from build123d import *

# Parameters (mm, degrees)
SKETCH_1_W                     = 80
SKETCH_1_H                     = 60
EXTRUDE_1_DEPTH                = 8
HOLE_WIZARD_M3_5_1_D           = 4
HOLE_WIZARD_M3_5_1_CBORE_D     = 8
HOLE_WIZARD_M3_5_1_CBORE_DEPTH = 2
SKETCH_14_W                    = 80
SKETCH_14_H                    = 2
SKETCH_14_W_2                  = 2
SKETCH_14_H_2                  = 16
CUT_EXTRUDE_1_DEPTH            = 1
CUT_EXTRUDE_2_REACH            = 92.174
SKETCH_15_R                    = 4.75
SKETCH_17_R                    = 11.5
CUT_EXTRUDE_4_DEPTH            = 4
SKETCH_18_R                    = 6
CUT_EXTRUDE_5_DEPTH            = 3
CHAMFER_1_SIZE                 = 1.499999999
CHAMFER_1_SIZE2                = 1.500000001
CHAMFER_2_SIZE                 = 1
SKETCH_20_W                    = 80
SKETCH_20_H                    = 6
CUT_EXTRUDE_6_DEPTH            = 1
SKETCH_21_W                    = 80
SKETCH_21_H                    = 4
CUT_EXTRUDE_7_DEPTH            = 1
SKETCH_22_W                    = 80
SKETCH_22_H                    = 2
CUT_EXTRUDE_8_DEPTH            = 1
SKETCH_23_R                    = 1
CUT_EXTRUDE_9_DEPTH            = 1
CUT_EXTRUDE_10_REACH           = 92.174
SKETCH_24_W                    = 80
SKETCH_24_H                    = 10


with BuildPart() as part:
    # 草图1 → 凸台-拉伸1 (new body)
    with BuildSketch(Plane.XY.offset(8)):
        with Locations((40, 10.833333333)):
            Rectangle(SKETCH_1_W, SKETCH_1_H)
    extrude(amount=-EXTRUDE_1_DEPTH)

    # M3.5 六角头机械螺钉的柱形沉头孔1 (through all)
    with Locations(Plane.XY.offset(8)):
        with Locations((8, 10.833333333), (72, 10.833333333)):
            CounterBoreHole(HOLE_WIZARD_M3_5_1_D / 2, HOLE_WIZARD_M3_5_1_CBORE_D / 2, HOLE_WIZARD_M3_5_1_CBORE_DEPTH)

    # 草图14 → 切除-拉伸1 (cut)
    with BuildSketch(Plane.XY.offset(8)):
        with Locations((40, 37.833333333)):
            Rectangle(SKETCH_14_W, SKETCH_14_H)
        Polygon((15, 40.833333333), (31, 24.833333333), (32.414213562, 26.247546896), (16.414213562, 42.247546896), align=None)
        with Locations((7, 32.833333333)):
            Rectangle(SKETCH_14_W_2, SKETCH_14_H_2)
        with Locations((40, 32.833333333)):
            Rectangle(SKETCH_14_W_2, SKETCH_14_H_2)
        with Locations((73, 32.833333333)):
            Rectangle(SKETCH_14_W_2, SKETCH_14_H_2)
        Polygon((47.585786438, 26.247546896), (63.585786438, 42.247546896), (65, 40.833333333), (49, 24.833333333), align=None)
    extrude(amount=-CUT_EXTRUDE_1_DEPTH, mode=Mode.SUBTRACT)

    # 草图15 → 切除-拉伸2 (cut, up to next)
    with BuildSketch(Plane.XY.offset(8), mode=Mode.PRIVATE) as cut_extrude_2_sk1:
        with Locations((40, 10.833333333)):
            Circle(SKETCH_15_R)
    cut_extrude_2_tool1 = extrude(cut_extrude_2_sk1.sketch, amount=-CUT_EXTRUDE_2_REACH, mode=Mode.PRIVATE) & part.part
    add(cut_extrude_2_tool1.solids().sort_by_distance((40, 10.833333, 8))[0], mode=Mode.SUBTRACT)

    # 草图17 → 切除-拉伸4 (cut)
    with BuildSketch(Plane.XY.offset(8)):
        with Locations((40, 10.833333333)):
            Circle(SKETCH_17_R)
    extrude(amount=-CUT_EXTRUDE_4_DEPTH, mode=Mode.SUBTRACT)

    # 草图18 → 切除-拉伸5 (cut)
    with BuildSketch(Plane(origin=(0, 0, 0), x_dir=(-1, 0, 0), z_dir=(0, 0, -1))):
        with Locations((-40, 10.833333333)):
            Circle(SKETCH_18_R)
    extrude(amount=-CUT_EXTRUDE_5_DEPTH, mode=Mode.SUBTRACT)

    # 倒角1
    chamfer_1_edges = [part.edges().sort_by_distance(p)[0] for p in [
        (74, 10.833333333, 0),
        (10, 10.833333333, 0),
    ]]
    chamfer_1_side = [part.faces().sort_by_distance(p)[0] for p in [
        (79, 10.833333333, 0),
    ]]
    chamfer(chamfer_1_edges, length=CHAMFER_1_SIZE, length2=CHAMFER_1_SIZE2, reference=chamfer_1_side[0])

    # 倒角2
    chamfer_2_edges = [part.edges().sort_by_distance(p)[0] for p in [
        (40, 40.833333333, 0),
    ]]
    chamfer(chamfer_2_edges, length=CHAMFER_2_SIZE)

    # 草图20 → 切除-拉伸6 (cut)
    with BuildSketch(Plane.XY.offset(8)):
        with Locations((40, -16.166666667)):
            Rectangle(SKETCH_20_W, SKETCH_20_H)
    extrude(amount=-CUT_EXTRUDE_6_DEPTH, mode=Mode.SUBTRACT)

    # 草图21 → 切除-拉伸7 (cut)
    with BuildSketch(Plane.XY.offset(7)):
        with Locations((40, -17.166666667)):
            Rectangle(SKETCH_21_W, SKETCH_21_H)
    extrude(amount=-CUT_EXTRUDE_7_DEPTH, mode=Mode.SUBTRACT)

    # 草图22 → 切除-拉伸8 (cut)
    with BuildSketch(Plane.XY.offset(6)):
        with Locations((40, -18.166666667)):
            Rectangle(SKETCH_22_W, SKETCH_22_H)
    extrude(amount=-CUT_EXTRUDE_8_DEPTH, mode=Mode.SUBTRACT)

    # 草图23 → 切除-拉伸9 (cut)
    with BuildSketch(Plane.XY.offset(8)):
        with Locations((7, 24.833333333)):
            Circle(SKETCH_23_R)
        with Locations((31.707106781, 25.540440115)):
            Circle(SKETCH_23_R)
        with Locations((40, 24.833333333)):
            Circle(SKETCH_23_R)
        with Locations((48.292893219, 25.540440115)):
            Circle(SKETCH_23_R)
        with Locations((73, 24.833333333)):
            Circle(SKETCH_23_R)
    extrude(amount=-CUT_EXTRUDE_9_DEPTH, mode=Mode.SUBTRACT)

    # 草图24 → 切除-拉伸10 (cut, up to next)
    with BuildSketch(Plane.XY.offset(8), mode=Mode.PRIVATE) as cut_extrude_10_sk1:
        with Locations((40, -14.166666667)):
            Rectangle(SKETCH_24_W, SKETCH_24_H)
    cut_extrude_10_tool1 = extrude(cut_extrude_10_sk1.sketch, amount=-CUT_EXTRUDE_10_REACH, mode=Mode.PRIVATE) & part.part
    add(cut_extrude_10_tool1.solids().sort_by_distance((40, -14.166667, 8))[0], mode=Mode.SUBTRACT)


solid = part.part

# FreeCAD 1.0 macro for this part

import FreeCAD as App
import Part
import Sketcher

V = App.Vector
Q = App.Units.Quantity


def edges_at(feature, points):
    """Names of the edges that pass closest to the given points."""
    edges = feature.Shape.Edges
    near = lambda p: min(range(len(edges)), key=lambda i: edges[i].distToShape(Part.Vertex(*p))[0])
    return sorted({f"Edge{near(p) + 1}" for p in points})

doc = App.newDocument("Part")
body = doc.addObject("PartDesign::Body", "Body")

# Sketch on XY plane
sketch1 = doc.addObject("Sketcher::SketchObject", "Sketch")
body.addObject(sketch1)
sketch1.AttachmentSupport = (doc.XY_Plane, [""])
sketch1.MapMode = "FlatFace"
sketch1.AttachmentOffset = App.Placement(V(0, 0, 8), App.Rotation())
sketch1.addGeometry([
    Part.LineSegment(V(0, 40.833333, 0), V(0, -19.166667, 0)),
    Part.LineSegment(V(0, -19.166667, 0), V(80, -19.166667, 0)),
    Part.LineSegment(V(80, -19.166667, 0), V(80, 40.833333, 0)),
    Part.LineSegment(V(80, 40.833333, 0), V(0, 40.833333, 0)),
], False)
sketch1.addConstraint([
    Sketcher.Constraint("Coincident", 0, 2, 1, 1),
    Sketcher.Constraint("Coincident", 1, 2, 2, 1),
    Sketcher.Constraint("Coincident", 2, 2, 3, 1),
    Sketcher.Constraint("Coincident", 3, 2, 0, 1),
    Sketcher.Constraint("Vertical", 0),
    Sketcher.Constraint("Horizontal", 1),
    Sketcher.Constraint("Vertical", 2),
    Sketcher.Constraint("Horizontal", 3),
    Sketcher.Constraint("PointOnObject", 0, 2, -2),
    Sketcher.Constraint("DistanceX", 1, 1, 1, 2, Q("80 mm")),
    Sketcher.Constraint("DistanceY", 0, 2, 0, 1, Q("60 mm")),
    Sketcher.Constraint("DistanceY", 0, 2, -1, 1, Q("19.166667 mm")),
])
pad1 = doc.addObject("PartDesign::Pad", "Pad")
body.addObject(pad1)
pad1.Profile = sketch1
pad1.Length = 8
pad1.Reversed = True

# Sketch on XY plane
sketch2 = doc.addObject("Sketcher::SketchObject", "Sketch001")
body.addObject(sketch2)
sketch2.AttachmentSupport = (doc.XY_Plane, [""])
sketch2.MapMode = "FlatFace"
sketch2.AttachmentOffset = App.Placement(V(0, 0, 8), App.Rotation())
sketch2.addGeometry([
    Part.Circle(V(8, 10.833333, 0), V(0, 0, 1), 2),
    Part.Circle(V(72, 10.833333, 0), V(0, 0, 1), 2),
], False)
sketch2.addConstraint([
    Sketcher.Constraint("Equal", 0, 1),
    Sketcher.Constraint("Horizontal", 0, 3, 1, 3),
    Sketcher.Constraint("Diameter", 0, Q("4 mm")),
    Sketcher.Constraint("DistanceX", -1, 1, 0, 3, Q("8 mm")),
    Sketcher.Constraint("DistanceX", -1, 1, 1, 3, Q("72 mm")),
    Sketcher.Constraint("DistanceY", -1, 1, 0, 3, Q("10.833333 mm")),
])
doc.recompute()
hole = doc.addObject("PartDesign::Hole", "Hole")
body.addObject(hole)
hole.Profile = sketch2
hole.ThreadType = "None"
hole.Diameter = 4
hole.DepthType = "ThroughAll"
hole.HoleCutType = "Counterbore"
hole.HoleCutDiameter = 8
hole.HoleCutDepth = 2

# Sketch on XY plane
sketch3 = doc.addObject("Sketcher::SketchObject", "Sketch002")
body.addObject(sketch3)
sketch3.AttachmentSupport = (doc.XY_Plane, [""])
sketch3.MapMode = "FlatFace"
sketch3.AttachmentOffset = App.Placement(V(0, 0, 8), App.Rotation())
sketch3.addGeometry([
    Part.LineSegment(V(0, 38.833333, 0), V(0, 36.833333, 0)),  # 0
    Part.LineSegment(V(0, 36.833333, 0), V(6, 36.833333, 0)),  # 1
    Part.LineSegment(V(6, 36.833333, 0), V(6, 24.833333, 0)),  # 2
    Part.LineSegment(V(6, 24.833333, 0), V(8, 24.833333, 0)),  # 3
    Part.LineSegment(V(8, 24.833333, 0), V(8, 36.833333, 0)),  # 4
    Part.LineSegment(V(8, 36.833333, 0), V(19, 36.833333, 0)),  # 5
    Part.LineSegment(V(19, 36.833333, 0), V(31, 24.833333, 0)),  # 6
    Part.LineSegment(V(31, 24.833333, 0), V(32.414214, 26.247547, 0)),  # 7
    Part.LineSegment(V(32.414214, 26.247547, 0), V(21.828427, 36.833333, 0)),  # 8
    Part.LineSegment(V(21.828427, 36.833333, 0), V(39, 36.833333, 0)),  # 9
    Part.LineSegment(V(39, 36.833333, 0), V(39, 24.833333, 0)),  # 10
    Part.LineSegment(V(39, 24.833333, 0), V(41, 24.833333, 0)),  # 11
    Part.LineSegment(V(41, 24.833333, 0), V(41, 36.833333, 0)),  # 12
    Part.LineSegment(V(41, 36.833333, 0), V(58.171573, 36.833333, 0)),  # 13
    Part.LineSegment(V(58.171573, 36.833333, 0), V(47.585786, 26.247547, 0)),  # 14
    Part.LineSegment(V(47.585786, 26.247547, 0), V(49, 24.833333, 0)),  # 15
    Part.LineSegment(V(49, 24.833333, 0), V(61, 36.833333, 0)),  # 16
    Part.LineSegment(V(61, 36.833333, 0), V(72, 36.833333, 0)),  # 17
    Part.LineSegment(V(72, 36.833333, 0), V(72, 24.833333, 0)),  # 18
    Part.LineSegment(V(72, 24.833333, 0), V(74, 24.833333, 0)),  # 19
    Part.LineSegment(V(74, 24.833333, 0), V(74, 36.833333, 0)),  # 20
    Part.LineSegment(V(74, 36.833333, 0), V(80, 36.833333, 0)),  # 21
    Part.LineSegment(V(80, 36.833333, 0), V(80, 38.833333, 0)),  # 22
    Part.LineSegment(V(80, 38.833333, 0), V(74, 38.833333, 0)),  # 23
    Part.LineSegment(V(74, 38.833333, 0), V(74, 40.833333, 0)),  # 24
    Part.LineSegment(V(74, 40.833333, 0), V(72, 40.833333, 0)),  # 25
    Part.LineSegment(V(72, 40.833333, 0), V(72, 38.833333, 0)),  # 26
    Part.LineSegment(V(72, 38.833333, 0), V(63, 38.833333, 0)),  # 27
    Part.LineSegment(V(63, 38.833333, 0), V(65, 40.833333, 0)),  # 28
    Part.LineSegment(V(65, 40.833333, 0), V(63.585786, 42.247547, 0)),  # 29
    Part.LineSegment(V(63.585786, 42.247547, 0), V(60.171573, 38.833333, 0)),  # 30
    Part.LineSegment(V(60.171573, 38.833333, 0), V(41, 38.833333, 0)),  # 31
    Part.LineSegment(V(41, 38.833333, 0), V(41, 40.833333, 0)),  # 32
    Part.LineSegment(V(41, 40.833333, 0), V(39, 40.833333, 0)),  # 33
    Part.LineSegment(V(39, 40.833333, 0), V(39, 38.833333, 0)),  # 34
    Part.LineSegment(V(39, 38.833333, 0), V(19.828427, 38.833333, 0)),  # 35
    Part.LineSegment(V(19.828427, 38.833333, 0), V(16.414214, 42.247547, 0)),  # 36
    Part.LineSegment(V(16.414214, 42.247547, 0), V(15, 40.833333, 0)),  # 37
    Part.LineSegment(V(15, 40.833333, 0), V(17, 38.833333, 0)),  # 38
    Part.LineSegment(V(17, 38.833333, 0), V(8, 38.833333, 0)),  # 39
    Part.LineSegment(V(8, 38.833333, 0), V(8, 40.833333, 0)),  # 40
    Part.LineSegment(V(8, 40.833333, 0), V(6, 40.833333, 0)),  # 41
    Part.LineSegment(V(6, 40.833333, 0), V(6, 38.833333, 0)),  # 42
    Part.LineSegment(V(6, 38.833333, 0), V(0, 38.833333, 0)),  # 43
], False)
sketch3.addConstraint([
    Sketcher.Constraint("Coincident", 0, 2, 1, 1),
    Sketcher.Constraint("Coincident", 1, 2, 2, 1),
    Sketcher.Constraint("Coincident", 2, 2, 3, 1),
    Sketcher.Constraint("Coincident", 3, 2, 4, 1),
    Sketcher.Constraint("Coincident", 4, 2, 5, 1),
    Sketcher.Constraint("Coincident", 5, 2, 6, 1),
    Sketcher.Constraint("Coincident", 6, 2, 7, 1),
    Sketcher.Constraint("Coincident", 7, 2, 8, 1),
    Sketcher.Constraint("Coincident", 8, 2, 9, 1),
    Sketcher.Constraint("Coincident", 9, 2, 10, 1),
    Sketcher.Constraint("Coincident", 10, 2, 11, 1),
    Sketcher.Constraint("Coincident", 11, 2, 12, 1),
    Sketcher.Constraint("Coincident", 12, 2, 13, 1),
    Sketcher.Constraint("Coincident", 13, 2, 14, 1),
    Sketcher.Constraint("Coincident", 14, 2, 15, 1),
    Sketcher.Constraint("Coincident", 15, 2, 16, 1),
    Sketcher.Constraint("Coincident", 16, 2, 17, 1),
    Sketcher.Constraint("Coincident", 17, 2, 18, 1),
    Sketcher.Constraint("Coincident", 18, 2, 19, 1),
    Sketcher.Constraint("Coincident", 19, 2, 20, 1),
    Sketcher.Constraint("Coincident", 20, 2, 21, 1),
    Sketcher.Constraint("Coincident", 21, 2, 22, 1),
    Sketcher.Constraint("Coincident", 22, 2, 23, 1),
    Sketcher.Constraint("Coincident", 23, 2, 24, 1),
    Sketcher.Constraint("Coincident", 24, 2, 25, 1),
    Sketcher.Constraint("Coincident", 25, 2, 26, 1),
    Sketcher.Constraint("Coincident", 26, 2, 27, 1),
    Sketcher.Constraint("Coincident", 27, 2, 28, 1),
    Sketcher.Constraint("Coincident", 28, 2, 29, 1),
    Sketcher.Constraint("Coincident", 29, 2, 30, 1),
    Sketcher.Constraint("Coincident", 30, 2, 31, 1),
    Sketcher.Constraint("Coincident", 31, 2, 32, 1),
    Sketcher.Constraint("Coincident", 32, 2, 33, 1),
    Sketcher.Constraint("Coincident", 33, 2, 34, 1),
    Sketcher.Constraint("Coincident", 34, 2, 35, 1),
    Sketcher.Constraint("Coincident", 35, 2, 36, 1),
    Sketcher.Constraint("Coincident", 36, 2, 37, 1),
    Sketcher.Constraint("Coincident", 37, 2, 38, 1),
    Sketcher.Constraint("Coincident", 38, 2, 39, 1),
    Sketcher.Constraint("Coincident", 39, 2, 40, 1),
    Sketcher.Constraint("Coincident", 40, 2, 41, 1),
    Sketcher.Constraint("Coincident", 41, 2, 42, 1),
    Sketcher.Constraint("Coincident", 42, 2, 43, 1),
    Sketcher.Constraint("Coincident", 43, 2, 0, 1),
    Sketcher.Constraint("Vertical", 0),
    Sketcher.Constraint("Horizontal", 1),
    Sketcher.Constraint("Vertical", 2),
    Sketcher.Constraint("Horizontal", 3),
    Sketcher.Constraint("Vertical", 4),
    Sketcher.Constraint("Horizontal", 5),
    Sketcher.Constraint("Horizontal", 9),
    Sketcher.Constraint("Vertical", 10),
    Sketcher.Constraint("Horizontal", 11),
    Sketcher.Constraint("Vertical", 12),
    Sketcher.Constraint("Horizontal", 13),
    Sketcher.Constraint("Horizontal", 17),
    Sketcher.Constraint("Vertical", 18),
    Sketcher.Constraint("Horizontal", 19),
    Sketcher.Constraint("Vertical", 20),
    Sketcher.Constraint("Horizontal", 21),
    Sketcher.Constraint("Vertical", 22),
    Sketcher.Constraint("Horizontal", 23),
    Sketcher.Constraint("Vertical", 24),
    Sketcher.Constraint("Horizontal", 25),
    Sketcher.Constraint("Vertical", 26),
    Sketcher.Constraint("Horizontal", 27),
    Sketcher.Constraint("Horizontal", 31),
    Sketcher.Constraint("Vertical", 32),
    Sketcher.Constraint("Horizontal", 33),
    Sketcher.Constraint("Vertical", 34),
    Sketcher.Constraint("Horizontal", 35),
    Sketcher.Constraint("Horizontal", 39),
    Sketcher.Constraint("Vertical", 40),
    Sketcher.Constraint("Horizontal", 41),
    Sketcher.Constraint("Vertical", 42),
    Sketcher.Constraint("Horizontal", 43),
    Sketcher.Constraint("PointOnObject", 0, 2, -2),
    Sketcher.Constraint("Perpendicular", 6, 7),
    Sketcher.Constraint("Perpendicular", 7, 8),
    Sketcher.Constraint("Perpendicular", 8, 14),
    Sketcher.Constraint("Perpendicular", 14, 15),
    Sketcher.Constraint("Perpendicular", 15, 16),
    Sketcher.Constraint("Parallel", 16, 28),
    Sketcher.Constraint("Perpendicular", 28, 29),
    Sketcher.Constraint("Perpendicular", 29, 30),
    Sketcher.Constraint("Perpendicular", 30, 36),
    Sketcher.Constraint("Perpendicular", 36, 37),
    Sketcher.Constraint("Perpendicular", 37, 38),
    Sketcher.Constraint("Horizontal", 1, 2, 4, 2),
    Sketcher.Constraint("Horizontal", 3, 2, 6, 2),
    Sketcher.Constraint("Horizontal", 5, 2, 8, 2),
    Sketcher.Constraint("Horizontal", 6, 2, 10, 2),
    Sketcher.Constraint("Horizontal", 9, 2, 12, 2),
    Sketcher.Constraint("Horizontal", 7, 2, 14, 2),
    Sketcher.Constraint("Horizontal", 11, 2, 15, 2),
    Sketcher.Constraint("Horizontal", 13, 2, 16, 2),
    Sketcher.Constraint("Horizontal", 15, 2, 18, 2),
    Sketcher.Constraint("Horizontal", 17, 2, 20, 2),
    Sketcher.Constraint("Horizontal", 23, 2, 26, 2),
    Sketcher.Constraint("Horizontal", 25, 2, 28, 2),
    Sketcher.Constraint("Horizontal", 27, 2, 30, 2),
    Sketcher.Constraint("Horizontal", 28, 2, 32, 2),
    Sketcher.Constraint("Horizontal", 31, 2, 34, 2),
    Sketcher.Constraint("Horizontal", 29, 2, 36, 2),
    Sketcher.Constraint("Horizontal", 33, 2, 37, 2),
    Sketcher.Constraint("Horizontal", 35, 2, 38, 2),
    Sketcher.Constraint("Horizontal", 37, 2, 40, 2),
    Sketcher.Constraint("Horizontal", 39, 2, 42, 2),
    Sketcher.Constraint("Vertical", 20, 2, 23, 2),
    Sketcher.Constraint("Vertical", 18, 2, 25, 2),
    Sketcher.Constraint("Vertical", 12, 2, 31, 2),
    Sketcher.Constraint("Vertical", 10, 2, 33, 2),
    Sketcher.Constraint("Vertical", 4, 2, 39, 2),
    Sketcher.Constraint("Vertical", 2, 2, 41, 2),
    Sketcher.Constraint("Equal", 3, 11),
    Sketcher.Constraint("Equal", 9, 13),
    Sketcher.Constraint("Equal", 5, 17),
    Sketcher.Constraint("Equal", 11, 19),
    Sketcher.Constraint("Equal", 1, 21),
    Sketcher.Constraint("Equal", 31, 35),
    Sketcher.Constraint("Equal", 41, 0),
    Sketcher.Constraint("Equal", 22, 24),
    Sketcher.Constraint("Equal", 8, 14),
    Sketcher.Constraint("Equal", 15, 29),
    Sketcher.Constraint("DistanceX", 1, 1, 1, 2, Q("6 mm")),
    Sketcher.Constraint("DistanceX", 3, 1, 3, 2, Q("2 mm")),
    Sketcher.Constraint("DistanceX", 5, 1, 5, 2, Q("11 mm")),
    Sketcher.Constraint("DistanceX", 27, 2, 27, 1, Q("9 mm")),
    Sketcher.Constraint("DistanceY", 2, 2, 2, 1, Q("12 mm")),
    Sketcher.Constraint("Distance", 7, Q("2 mm")),
    Sketcher.Constraint("DistanceX", -1, 1, 9, 2, Q("39 mm")),
    Sketcher.Constraint("DistanceY", -1, 1, 0, 2, Q("36.833333 mm")),
])
pocket1 = doc.addObject("PartDesign::Pocket", "Pocket")
body.addObject(pocket1)
pocket1.Profile = sketch3
pocket1.Length = 1

# Sketch on XY plane
sketch4 = doc.addObject("Sketcher::SketchObject", "Sketch003")
body.addObject(sketch4)
sketch4.AttachmentSupport = (doc.XY_Plane, [""])
sketch4.MapMode = "FlatFace"
sketch4.AttachmentOffset = App.Placement(V(0, 0, 8), App.Rotation())
sketch4.addGeometry(Part.Circle(V(40, 10.833333, 0), V(0, 0, 1), 4.75), False)
sketch4.addConstraint([
    Sketcher.Constraint("Diameter", 0, Q("9.5 mm")),
    Sketcher.Constraint("DistanceX", -1, 1, 0, 3, Q("40 mm")),
    Sketcher.Constraint("DistanceY", -1, 1, 0, 3, Q("10.833333 mm")),
])
pocket2 = doc.addObject("PartDesign::Pocket", "Pocket001")
body.addObject(pocket2)
pocket2.Profile = sketch4
pocket2.Type = "UpToFirst"

# Sketch on XY plane
sketch5 = doc.addObject("Sketcher::SketchObject", "Sketch004")
body.addObject(sketch5)
sketch5.AttachmentSupport = (doc.XY_Plane, [""])
sketch5.MapMode = "FlatFace"
sketch5.AttachmentOffset = App.Placement(V(0, 0, 8), App.Rotation())
sketch5.addGeometry(Part.Circle(V(40, 10.833333, 0), V(0, 0, 1), 11.5), False)
sketch5.addConstraint([
    Sketcher.Constraint("Diameter", 0, Q("23 mm")),
    Sketcher.Constraint("DistanceX", -1, 1, 0, 3, Q("40 mm")),
    Sketcher.Constraint("DistanceY", -1, 1, 0, 3, Q("10.833333 mm")),
])
pocket3 = doc.addObject("PartDesign::Pocket", "Pocket002")
body.addObject(pocket3)
pocket3.Profile = sketch5
pocket3.Length = 4

# Sketch on XY plane
sketch6 = doc.addObject("Sketcher::SketchObject", "Sketch005")
body.addObject(sketch6)
sketch6.AttachmentSupport = (doc.XY_Plane, [""])
sketch6.MapMode = "FlatFace"
sketch6.addGeometry(Part.Circle(V(40, 10.833333, 0), V(0, 0, 1), 6), False)
sketch6.addConstraint([
    Sketcher.Constraint("Diameter", 0, Q("12 mm")),
    Sketcher.Constraint("DistanceX", -1, 1, 0, 3, Q("40 mm")),
    Sketcher.Constraint("DistanceY", -1, 1, 0, 3, Q("10.833333 mm")),
])
pocket4 = doc.addObject("PartDesign::Pocket", "Pocket003")
body.addObject(pocket4)
pocket4.Profile = sketch6
pocket4.Length = 3
pocket4.Reversed = True
doc.recompute()

chamfer = doc.addObject("PartDesign::Chamfer", "Chamfer")
body.addObject(chamfer)
chamfer.Base = (pocket4, edges_at(pocket4, [(74, 10.833, 0), (10, 10.833, 0)]))
chamfer.ChamferType = "Two distances"
chamfer.Size = 1.5
chamfer.Size2 = 1.5
doc.recompute()

chamfer2 = doc.addObject("PartDesign::Chamfer", "Chamfer001")
body.addObject(chamfer2)
chamfer2.Base = (chamfer, edges_at(chamfer, [(40, 40.833, 0)]))
chamfer2.Size = 1

# Sketch on XY plane
sketch7 = doc.addObject("Sketcher::SketchObject", "Sketch006")
body.addObject(sketch7)
sketch7.AttachmentSupport = (doc.XY_Plane, [""])
sketch7.MapMode = "FlatFace"
sketch7.AttachmentOffset = App.Placement(V(0, 0, 8), App.Rotation())
sketch7.addGeometry([
    Part.LineSegment(V(0, -13.166667, 0), V(0, -19.166667, 0)),
    Part.LineSegment(V(0, -19.166667, 0), V(80, -19.166667, 0)),
    Part.LineSegment(V(80, -19.166667, 0), V(80, -13.166667, 0)),
    Part.LineSegment(V(80, -13.166667, 0), V(0, -13.166667, 0)),
], False)
sketch7.addConstraint([
    Sketcher.Constraint("Coincident", 0, 2, 1, 1),
    Sketcher.Constraint("Coincident", 1, 2, 2, 1),
    Sketcher.Constraint("Coincident", 2, 2, 3, 1),
    Sketcher.Constraint("Coincident", 3, 2, 0, 1),
    Sketcher.Constraint("Vertical", 0),
    Sketcher.Constraint("Horizontal", 1),
    Sketcher.Constraint("Vertical", 2),
    Sketcher.Constraint("Horizontal", 3),
    Sketcher.Constraint("PointOnObject", 0, 2, -2),
    Sketcher.Constraint("DistanceX", 1, 1, 1, 2, Q("80 mm")),
    Sketcher.Constraint("DistanceY", 0, 2, 0, 1, Q("6 mm")),
    Sketcher.Constraint("DistanceY", 0, 2, -1, 1, Q("19.166667 mm")),
])
pocket5 = doc.addObject("PartDesign::Pocket", "Pocket004")
body.addObject(pocket5)
pocket5.Profile = sketch7
pocket5.Length = 1

# Sketch on XY plane
sketch8 = doc.addObject("Sketcher::SketchObject", "Sketch007")
body.addObject(sketch8)
sketch8.AttachmentSupport = (doc.XY_Plane, [""])
sketch8.MapMode = "FlatFace"
sketch8.AttachmentOffset = App.Placement(V(0, 0, 7), App.Rotation())
sketch8.addGeometry([
    Part.LineSegment(V(0, -15.166667, 0), V(0, -19.166667, 0)),
    Part.LineSegment(V(0, -19.166667, 0), V(80, -19.166667, 0)),
    Part.LineSegment(V(80, -19.166667, 0), V(80, -15.166667, 0)),
    Part.LineSegment(V(80, -15.166667, 0), V(0, -15.166667, 0)),
], False)
sketch8.addConstraint([
    Sketcher.Constraint("Coincident", 0, 2, 1, 1),
    Sketcher.Constraint("Coincident", 1, 2, 2, 1),
    Sketcher.Constraint("Coincident", 2, 2, 3, 1),
    Sketcher.Constraint("Coincident", 3, 2, 0, 1),
    Sketcher.Constraint("Vertical", 0),
    Sketcher.Constraint("Horizontal", 1),
    Sketcher.Constraint("Vertical", 2),
    Sketcher.Constraint("Horizontal", 3),
    Sketcher.Constraint("PointOnObject", 0, 2, -2),
    Sketcher.Constraint("DistanceX", 1, 1, 1, 2, Q("80 mm")),
    Sketcher.Constraint("DistanceY", 0, 2, 0, 1, Q("4 mm")),
    Sketcher.Constraint("DistanceY", 0, 2, -1, 1, Q("19.166667 mm")),
])
pocket6 = doc.addObject("PartDesign::Pocket", "Pocket005")
body.addObject(pocket6)
pocket6.Profile = sketch8
pocket6.Length = 1

# Sketch on XY plane
sketch9 = doc.addObject("Sketcher::SketchObject", "Sketch008")
body.addObject(sketch9)
sketch9.AttachmentSupport = (doc.XY_Plane, [""])
sketch9.MapMode = "FlatFace"
sketch9.AttachmentOffset = App.Placement(V(0, 0, 6), App.Rotation())
sketch9.addGeometry([
    Part.LineSegment(V(0, -17.166667, 0), V(0, -19.166667, 0)),
    Part.LineSegment(V(0, -19.166667, 0), V(80, -19.166667, 0)),
    Part.LineSegment(V(80, -19.166667, 0), V(80, -17.166667, 0)),
    Part.LineSegment(V(80, -17.166667, 0), V(0, -17.166667, 0)),
], False)
sketch9.addConstraint([
    Sketcher.Constraint("Coincident", 0, 2, 1, 1),
    Sketcher.Constraint("Coincident", 1, 2, 2, 1),
    Sketcher.Constraint("Coincident", 2, 2, 3, 1),
    Sketcher.Constraint("Coincident", 3, 2, 0, 1),
    Sketcher.Constraint("Vertical", 0),
    Sketcher.Constraint("Horizontal", 1),
    Sketcher.Constraint("Vertical", 2),
    Sketcher.Constraint("Horizontal", 3),
    Sketcher.Constraint("PointOnObject", 0, 2, -2),
    Sketcher.Constraint("DistanceX", 1, 1, 1, 2, Q("80 mm")),
    Sketcher.Constraint("DistanceY", 0, 2, 0, 1, Q("2 mm")),
    Sketcher.Constraint("DistanceY", 0, 2, -1, 1, Q("19.166667 mm")),
])
pocket7 = doc.addObject("PartDesign::Pocket", "Pocket006")
body.addObject(pocket7)
pocket7.Profile = sketch9
pocket7.Length = 1

# Sketch on XY plane
sketch10 = doc.addObject("Sketcher::SketchObject", "Sketch009")
body.addObject(sketch10)
sketch10.AttachmentSupport = (doc.XY_Plane, [""])
sketch10.MapMode = "FlatFace"
sketch10.AttachmentOffset = App.Placement(V(0, 0, 8), App.Rotation())
sketch10.addGeometry([
    Part.Circle(V(7, 24.833333, 0), V(0, 0, 1), 1),  # 0
    Part.Circle(V(31.707107, 25.54044, 0), V(0, 0, 1), 1),  # 1
    Part.Circle(V(40, 24.833333, 0), V(0, 0, 1), 1),  # 2
    Part.Circle(V(48.292893, 25.54044, 0), V(0, 0, 1), 1),  # 3
    Part.Circle(V(73, 24.833333, 0), V(0, 0, 1), 1),  # 4
], False)
sketch10.addConstraint([
    Sketcher.Constraint("Equal", 0, 1),
    Sketcher.Constraint("Equal", 1, 2),
    Sketcher.Constraint("Equal", 2, 3),
    Sketcher.Constraint("Equal", 3, 4),
    Sketcher.Constraint("Horizontal", 0, 3, 2, 3),
    Sketcher.Constraint("Horizontal", 1, 3, 3, 3),
    Sketcher.Constraint("Horizontal", 2, 3, 4, 3),
    Sketcher.Constraint("Diameter", 0, Q("2 mm")),
    Sketcher.Constraint("DistanceX", -1, 1, 0, 3, Q("7 mm")),
    Sketcher.Constraint("DistanceX", -1, 1, 2, 3, Q("40 mm")),
    Sketcher.Constraint("DistanceX", -1, 1, 4, 3, Q("73 mm")),
    Sketcher.Constraint("DistanceY", -1, 1, 1, 3, Q("25.54044 mm")),
    Sketcher.Constraint("DistanceY", -1, 1, 0, 3, Q("24.833333 mm")),
    Sketcher.Constraint("DistanceX", -1, 1, 1, 3, Q("31.707107 mm")),
    Sketcher.Constraint("DistanceX", -1, 1, 3, 3, Q("48.292893 mm")),
])
pocket8 = doc.addObject("PartDesign::Pocket", "Pocket007")
body.addObject(pocket8)
pocket8.Profile = sketch10
pocket8.Length = 1

# Sketch on XY plane
sketch11 = doc.addObject("Sketcher::SketchObject", "Sketch010")
body.addObject(sketch11)
sketch11.AttachmentSupport = (doc.XY_Plane, [""])
sketch11.MapMode = "FlatFace"
sketch11.AttachmentOffset = App.Placement(V(0, 0, 8), App.Rotation())
sketch11.addGeometry([
    Part.LineSegment(V(0, -9.166667, 0), V(0, -19.166667, 0)),
    Part.LineSegment(V(0, -19.166667, 0), V(80, -19.166667, 0)),
    Part.LineSegment(V(80, -19.166667, 0), V(80, -9.166667, 0)),
    Part.LineSegment(V(80, -9.166667, 0), V(0, -9.166667, 0)),
], False)
sketch11.addConstraint([
    Sketcher.Constraint("Coincident", 0, 2, 1, 1),
    Sketcher.Constraint("Coincident", 1, 2, 2, 1),
    Sketcher.Constraint("Coincident", 2, 2, 3, 1),
    Sketcher.Constraint("Coincident", 3, 2, 0, 1),
    Sketcher.Constraint("Vertical", 0),
    Sketcher.Constraint("Horizontal", 1),
    Sketcher.Constraint("Vertical", 2),
    Sketcher.Constraint("Horizontal", 3),
    Sketcher.Constraint("PointOnObject", 0, 2, -2),
    Sketcher.Constraint("DistanceX", 1, 1, 1, 2, Q("80 mm")),
    Sketcher.Constraint("DistanceY", 0, 2, 0, 1, Q("10 mm")),
    Sketcher.Constraint("DistanceY", 0, 2, -1, 1, Q("19.166667 mm")),
])
pocket9 = doc.addObject("PartDesign::Pocket", "Pocket008")
body.addObject(pocket9)
pocket9.Profile = sketch11
pocket9.Length = 8

doc.recompute()
